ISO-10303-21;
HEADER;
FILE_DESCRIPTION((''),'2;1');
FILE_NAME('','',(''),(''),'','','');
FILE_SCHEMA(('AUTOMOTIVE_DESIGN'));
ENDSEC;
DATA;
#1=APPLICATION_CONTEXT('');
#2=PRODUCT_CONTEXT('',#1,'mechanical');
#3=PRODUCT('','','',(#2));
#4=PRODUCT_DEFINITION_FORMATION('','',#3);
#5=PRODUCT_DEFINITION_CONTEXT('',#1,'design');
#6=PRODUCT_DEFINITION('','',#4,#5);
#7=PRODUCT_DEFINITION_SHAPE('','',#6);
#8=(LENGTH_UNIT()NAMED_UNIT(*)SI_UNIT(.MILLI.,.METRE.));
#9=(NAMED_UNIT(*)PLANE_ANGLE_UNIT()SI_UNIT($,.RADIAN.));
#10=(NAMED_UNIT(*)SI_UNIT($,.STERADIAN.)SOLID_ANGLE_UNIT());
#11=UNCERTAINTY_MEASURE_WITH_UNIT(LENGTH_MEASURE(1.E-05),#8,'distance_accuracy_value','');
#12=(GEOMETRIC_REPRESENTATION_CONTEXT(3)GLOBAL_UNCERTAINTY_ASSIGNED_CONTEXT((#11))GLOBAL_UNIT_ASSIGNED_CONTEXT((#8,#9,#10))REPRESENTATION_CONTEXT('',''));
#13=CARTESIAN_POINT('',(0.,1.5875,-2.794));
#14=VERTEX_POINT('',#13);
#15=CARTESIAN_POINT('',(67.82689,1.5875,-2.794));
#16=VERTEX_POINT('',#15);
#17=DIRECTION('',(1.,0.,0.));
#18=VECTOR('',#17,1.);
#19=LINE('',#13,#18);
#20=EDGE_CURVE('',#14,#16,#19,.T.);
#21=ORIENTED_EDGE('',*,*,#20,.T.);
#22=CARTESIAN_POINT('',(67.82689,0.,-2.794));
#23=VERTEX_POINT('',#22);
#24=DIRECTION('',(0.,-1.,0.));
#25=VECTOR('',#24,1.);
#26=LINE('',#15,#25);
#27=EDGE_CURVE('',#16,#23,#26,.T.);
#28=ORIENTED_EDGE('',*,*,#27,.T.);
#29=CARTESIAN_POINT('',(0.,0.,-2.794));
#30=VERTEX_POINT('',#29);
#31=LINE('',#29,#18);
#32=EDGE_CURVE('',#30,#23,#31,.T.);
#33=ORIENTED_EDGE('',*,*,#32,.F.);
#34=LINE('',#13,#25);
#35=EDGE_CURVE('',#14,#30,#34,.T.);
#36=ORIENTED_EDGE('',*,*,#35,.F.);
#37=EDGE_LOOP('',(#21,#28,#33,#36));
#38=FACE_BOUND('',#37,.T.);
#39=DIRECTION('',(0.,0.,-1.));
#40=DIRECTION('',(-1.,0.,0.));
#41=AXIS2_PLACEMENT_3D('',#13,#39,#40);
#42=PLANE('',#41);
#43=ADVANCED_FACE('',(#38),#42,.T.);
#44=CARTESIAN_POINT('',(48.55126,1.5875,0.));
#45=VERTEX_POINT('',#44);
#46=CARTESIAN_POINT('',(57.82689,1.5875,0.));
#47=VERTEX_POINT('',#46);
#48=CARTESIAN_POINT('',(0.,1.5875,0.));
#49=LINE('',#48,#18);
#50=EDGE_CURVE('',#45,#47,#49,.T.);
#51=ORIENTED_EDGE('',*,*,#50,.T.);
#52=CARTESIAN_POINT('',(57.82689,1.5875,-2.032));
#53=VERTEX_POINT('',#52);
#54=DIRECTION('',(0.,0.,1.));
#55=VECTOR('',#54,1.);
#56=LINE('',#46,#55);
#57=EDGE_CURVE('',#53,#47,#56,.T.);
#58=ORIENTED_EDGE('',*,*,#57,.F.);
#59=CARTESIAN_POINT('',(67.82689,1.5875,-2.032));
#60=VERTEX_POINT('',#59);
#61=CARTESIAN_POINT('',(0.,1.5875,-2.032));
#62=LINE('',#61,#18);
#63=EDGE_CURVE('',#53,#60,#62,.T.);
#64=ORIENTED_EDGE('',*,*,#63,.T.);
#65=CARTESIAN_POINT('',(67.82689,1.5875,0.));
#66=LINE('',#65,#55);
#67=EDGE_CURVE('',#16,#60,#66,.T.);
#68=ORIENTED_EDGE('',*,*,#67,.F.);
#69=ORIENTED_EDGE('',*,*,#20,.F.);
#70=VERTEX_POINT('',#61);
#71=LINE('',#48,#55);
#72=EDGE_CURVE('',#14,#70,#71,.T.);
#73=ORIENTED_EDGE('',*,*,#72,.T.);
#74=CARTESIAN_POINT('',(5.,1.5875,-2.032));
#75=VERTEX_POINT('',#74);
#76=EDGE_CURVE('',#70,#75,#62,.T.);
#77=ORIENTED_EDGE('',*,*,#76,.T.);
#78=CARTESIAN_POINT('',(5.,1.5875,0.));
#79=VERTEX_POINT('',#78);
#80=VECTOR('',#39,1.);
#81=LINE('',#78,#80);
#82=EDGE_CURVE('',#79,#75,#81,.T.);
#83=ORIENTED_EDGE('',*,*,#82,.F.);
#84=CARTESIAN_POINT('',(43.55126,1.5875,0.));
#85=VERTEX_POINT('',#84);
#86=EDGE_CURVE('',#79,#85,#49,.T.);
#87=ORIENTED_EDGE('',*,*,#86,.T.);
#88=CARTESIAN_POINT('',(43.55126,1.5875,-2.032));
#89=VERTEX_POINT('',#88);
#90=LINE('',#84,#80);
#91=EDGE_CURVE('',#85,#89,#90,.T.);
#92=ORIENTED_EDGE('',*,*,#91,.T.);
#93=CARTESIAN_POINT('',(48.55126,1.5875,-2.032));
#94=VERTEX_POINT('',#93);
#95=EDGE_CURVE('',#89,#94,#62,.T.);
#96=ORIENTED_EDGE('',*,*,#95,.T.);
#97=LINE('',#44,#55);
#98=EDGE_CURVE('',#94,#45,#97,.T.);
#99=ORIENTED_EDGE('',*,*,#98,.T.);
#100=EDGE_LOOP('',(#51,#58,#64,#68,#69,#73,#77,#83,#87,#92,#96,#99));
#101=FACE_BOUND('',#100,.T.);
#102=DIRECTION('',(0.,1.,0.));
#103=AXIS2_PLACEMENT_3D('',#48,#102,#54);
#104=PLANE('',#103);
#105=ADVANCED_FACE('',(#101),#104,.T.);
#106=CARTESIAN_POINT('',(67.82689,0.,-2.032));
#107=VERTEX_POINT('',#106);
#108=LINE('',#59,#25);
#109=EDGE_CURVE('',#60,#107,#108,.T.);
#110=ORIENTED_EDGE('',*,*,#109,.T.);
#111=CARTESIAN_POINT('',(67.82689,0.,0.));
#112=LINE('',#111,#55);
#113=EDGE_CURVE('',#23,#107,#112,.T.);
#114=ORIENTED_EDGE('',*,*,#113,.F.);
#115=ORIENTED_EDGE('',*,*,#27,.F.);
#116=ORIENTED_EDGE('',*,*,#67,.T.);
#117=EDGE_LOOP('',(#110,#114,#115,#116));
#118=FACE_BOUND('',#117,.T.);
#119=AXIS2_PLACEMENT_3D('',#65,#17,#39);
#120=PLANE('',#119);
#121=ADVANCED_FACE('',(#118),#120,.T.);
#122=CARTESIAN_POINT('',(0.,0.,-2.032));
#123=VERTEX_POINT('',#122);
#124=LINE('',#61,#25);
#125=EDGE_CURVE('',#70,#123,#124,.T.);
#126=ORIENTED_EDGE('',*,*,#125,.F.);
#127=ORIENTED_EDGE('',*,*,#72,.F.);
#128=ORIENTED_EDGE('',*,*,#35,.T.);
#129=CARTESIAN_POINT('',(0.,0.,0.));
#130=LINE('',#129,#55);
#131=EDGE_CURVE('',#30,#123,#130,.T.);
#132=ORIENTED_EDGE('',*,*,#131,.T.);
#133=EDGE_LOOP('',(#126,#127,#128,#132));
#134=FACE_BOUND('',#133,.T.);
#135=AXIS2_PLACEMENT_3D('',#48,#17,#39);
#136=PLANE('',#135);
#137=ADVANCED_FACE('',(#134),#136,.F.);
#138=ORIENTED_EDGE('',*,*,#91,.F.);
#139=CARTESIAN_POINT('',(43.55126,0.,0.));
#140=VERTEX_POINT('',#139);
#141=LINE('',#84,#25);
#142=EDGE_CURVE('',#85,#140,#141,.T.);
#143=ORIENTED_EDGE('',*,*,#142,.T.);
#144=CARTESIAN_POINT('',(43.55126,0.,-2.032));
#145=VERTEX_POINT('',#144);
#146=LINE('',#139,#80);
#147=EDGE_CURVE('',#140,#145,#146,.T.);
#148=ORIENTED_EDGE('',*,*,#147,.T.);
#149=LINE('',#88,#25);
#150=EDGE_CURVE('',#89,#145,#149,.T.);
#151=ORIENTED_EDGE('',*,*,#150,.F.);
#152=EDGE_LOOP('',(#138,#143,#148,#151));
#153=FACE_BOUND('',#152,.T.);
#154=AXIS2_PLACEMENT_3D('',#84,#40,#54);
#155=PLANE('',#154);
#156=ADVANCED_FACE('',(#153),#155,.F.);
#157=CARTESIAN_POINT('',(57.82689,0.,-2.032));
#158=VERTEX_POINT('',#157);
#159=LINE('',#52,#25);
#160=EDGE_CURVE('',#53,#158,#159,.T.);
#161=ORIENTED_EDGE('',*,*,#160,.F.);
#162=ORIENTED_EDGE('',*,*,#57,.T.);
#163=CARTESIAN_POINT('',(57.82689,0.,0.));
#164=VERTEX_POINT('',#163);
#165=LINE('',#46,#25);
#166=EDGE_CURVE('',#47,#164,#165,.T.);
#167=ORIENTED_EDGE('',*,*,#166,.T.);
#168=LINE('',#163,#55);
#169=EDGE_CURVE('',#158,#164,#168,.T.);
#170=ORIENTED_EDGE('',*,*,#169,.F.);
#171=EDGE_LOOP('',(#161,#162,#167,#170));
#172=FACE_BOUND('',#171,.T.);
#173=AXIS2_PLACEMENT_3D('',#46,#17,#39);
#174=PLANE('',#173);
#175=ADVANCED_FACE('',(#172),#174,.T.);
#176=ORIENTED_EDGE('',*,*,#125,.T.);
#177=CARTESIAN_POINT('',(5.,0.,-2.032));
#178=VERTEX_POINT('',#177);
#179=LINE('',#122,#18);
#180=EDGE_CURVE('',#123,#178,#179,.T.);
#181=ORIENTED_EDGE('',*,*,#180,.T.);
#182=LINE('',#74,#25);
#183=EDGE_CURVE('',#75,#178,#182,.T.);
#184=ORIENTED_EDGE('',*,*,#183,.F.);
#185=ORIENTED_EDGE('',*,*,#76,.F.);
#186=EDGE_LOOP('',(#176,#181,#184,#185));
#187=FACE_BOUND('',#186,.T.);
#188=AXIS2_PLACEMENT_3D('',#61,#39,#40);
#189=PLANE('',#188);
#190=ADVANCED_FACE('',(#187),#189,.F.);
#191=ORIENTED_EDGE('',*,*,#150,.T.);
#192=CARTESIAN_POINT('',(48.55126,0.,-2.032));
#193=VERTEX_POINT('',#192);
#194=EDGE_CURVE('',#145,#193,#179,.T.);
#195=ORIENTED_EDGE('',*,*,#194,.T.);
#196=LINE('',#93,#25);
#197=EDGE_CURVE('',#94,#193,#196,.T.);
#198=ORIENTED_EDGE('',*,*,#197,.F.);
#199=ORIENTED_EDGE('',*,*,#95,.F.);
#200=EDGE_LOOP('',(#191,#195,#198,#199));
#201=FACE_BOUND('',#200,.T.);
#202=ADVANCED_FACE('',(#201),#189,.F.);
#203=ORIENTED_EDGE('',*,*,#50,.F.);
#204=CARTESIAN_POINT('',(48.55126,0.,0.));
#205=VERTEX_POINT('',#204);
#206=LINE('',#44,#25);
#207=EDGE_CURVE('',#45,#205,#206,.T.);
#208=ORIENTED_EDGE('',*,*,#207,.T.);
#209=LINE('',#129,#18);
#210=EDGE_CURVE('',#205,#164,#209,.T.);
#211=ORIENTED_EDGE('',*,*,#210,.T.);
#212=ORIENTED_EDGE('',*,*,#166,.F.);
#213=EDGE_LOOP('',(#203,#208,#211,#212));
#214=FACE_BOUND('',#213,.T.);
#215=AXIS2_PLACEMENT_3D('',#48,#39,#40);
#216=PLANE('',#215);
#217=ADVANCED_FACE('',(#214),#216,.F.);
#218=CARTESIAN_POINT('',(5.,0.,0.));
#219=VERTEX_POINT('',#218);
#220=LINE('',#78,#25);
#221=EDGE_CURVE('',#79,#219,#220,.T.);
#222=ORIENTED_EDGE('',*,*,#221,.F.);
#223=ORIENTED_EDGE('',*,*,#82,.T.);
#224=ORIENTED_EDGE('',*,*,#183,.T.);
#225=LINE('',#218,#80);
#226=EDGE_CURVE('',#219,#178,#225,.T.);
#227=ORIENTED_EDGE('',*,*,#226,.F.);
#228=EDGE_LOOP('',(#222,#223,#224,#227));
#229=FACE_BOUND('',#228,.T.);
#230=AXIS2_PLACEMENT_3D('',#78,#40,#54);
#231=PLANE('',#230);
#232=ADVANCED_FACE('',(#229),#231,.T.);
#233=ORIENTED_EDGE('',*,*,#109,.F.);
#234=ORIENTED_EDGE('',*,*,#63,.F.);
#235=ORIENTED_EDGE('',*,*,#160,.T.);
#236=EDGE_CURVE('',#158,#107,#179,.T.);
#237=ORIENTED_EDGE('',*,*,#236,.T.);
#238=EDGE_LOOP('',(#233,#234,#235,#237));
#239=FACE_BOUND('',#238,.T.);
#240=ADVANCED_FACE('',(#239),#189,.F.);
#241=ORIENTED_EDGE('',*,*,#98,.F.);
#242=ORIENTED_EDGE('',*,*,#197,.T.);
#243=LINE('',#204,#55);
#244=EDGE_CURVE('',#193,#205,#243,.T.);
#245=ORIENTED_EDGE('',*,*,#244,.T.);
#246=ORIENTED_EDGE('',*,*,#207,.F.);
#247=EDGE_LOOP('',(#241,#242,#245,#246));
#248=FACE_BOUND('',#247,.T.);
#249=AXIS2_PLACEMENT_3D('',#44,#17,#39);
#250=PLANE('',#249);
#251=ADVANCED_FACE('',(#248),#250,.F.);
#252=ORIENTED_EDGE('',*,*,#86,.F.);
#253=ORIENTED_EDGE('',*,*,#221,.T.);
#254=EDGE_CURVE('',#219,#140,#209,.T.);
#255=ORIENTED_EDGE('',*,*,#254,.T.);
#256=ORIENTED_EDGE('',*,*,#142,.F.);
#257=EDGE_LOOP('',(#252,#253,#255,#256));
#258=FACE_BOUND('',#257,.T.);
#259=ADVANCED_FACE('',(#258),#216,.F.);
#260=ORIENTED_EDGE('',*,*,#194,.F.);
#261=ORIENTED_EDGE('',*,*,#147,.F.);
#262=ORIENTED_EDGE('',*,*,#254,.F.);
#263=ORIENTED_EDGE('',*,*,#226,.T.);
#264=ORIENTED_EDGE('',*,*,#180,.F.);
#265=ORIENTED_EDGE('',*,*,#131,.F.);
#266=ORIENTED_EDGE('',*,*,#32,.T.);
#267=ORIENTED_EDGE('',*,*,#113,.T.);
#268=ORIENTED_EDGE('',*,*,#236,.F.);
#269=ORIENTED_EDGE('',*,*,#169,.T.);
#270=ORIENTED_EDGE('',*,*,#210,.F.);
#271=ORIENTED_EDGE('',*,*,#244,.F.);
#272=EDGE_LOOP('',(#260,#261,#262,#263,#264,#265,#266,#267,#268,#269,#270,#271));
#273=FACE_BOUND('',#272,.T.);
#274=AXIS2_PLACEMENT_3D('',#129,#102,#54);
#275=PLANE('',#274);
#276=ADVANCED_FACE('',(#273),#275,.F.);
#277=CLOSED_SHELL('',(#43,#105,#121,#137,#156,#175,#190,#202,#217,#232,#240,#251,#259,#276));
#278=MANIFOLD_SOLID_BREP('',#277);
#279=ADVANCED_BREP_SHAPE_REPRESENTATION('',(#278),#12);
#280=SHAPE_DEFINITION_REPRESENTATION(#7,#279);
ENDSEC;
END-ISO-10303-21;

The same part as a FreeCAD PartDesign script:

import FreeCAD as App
import Part
import Sketcher
from FreeCAD import Vector
Q = App.Units.Quantity

doc = App.newDocument("Part")
params = doc.addObject("Spreadsheet::Sheet", "Params")
for row, (alias, value) in enumerate([
    ("sketch1_height", "0.08 in"),
    ("sketch1_height2", "0.03 in"),
    ("pad1_length", "0.0625 in"),
], start=1):
    params.set(f"A{row}", alias)
    params.set(f"B{row}", "=" + value)
    params.setAlias(f"B{row}", alias)

body = doc.addObject("PartDesign::Body", "Body")

# Sketch on XZ plane
sketch1 = body.newObject("Sketcher::SketchObject", "Sketch")
sketch1.AttachmentSupport = (doc.getObject("XZ_Plane"), [""])
sketch1.MapMode = "FlatFace"
sketch1.addGeometry([
    Part.LineSegment(Vector(5, 0, 0), Vector(43.55126, 0, 0)),  # 0
    Part.LineSegment(Vector(43.55126, 0, 0), Vector(43.55126, -2.032, 0)),  # 1
    Part.LineSegment(Vector(43.55126, -2.032, 0), Vector(48.55126, -2.032, 0)),  # 2
    Part.LineSegment(Vector(48.55126, -2.032, 0), Vector(48.55126, 0, 0)),  # 3
    Part.LineSegment(Vector(48.55126, 0, 0), Vector(57.82689, 0, 0)),  # 4
    Part.LineSegment(Vector(57.82689, 0, 0), Vector(57.82689, -2.032, 0)),  # 5
    Part.LineSegment(Vector(57.82689, -2.032, 0), Vector(67.82689, -2.032, 0)),  # 6
    Part.LineSegment(Vector(67.82689, -2.032, 0), Vector(67.82689, -2.794, 0)),  # 7
    Part.LineSegment(Vector(67.82689, -2.794, 0), Vector(0, -2.794, 0)),  # 8
    Part.LineSegment(Vector(0, -2.794, 0), Vector(0, -2.032, 0)),  # 9
    Part.LineSegment(Vector(0, -2.032, 0), Vector(5, -2.032, 0)),  # 10
    Part.LineSegment(Vector(5, -2.032, 0), Vector(5, 0, 0)),  # 11
], False)
sketch1.addConstraint([
    Sketcher.Constraint("Coincident", 0, 2, 1, 1),
    Sketcher.Constraint("Coincident", 1, 2, 2, 1),
    Sketcher.Constraint("Coincident", 2, 2, 3, 1),
    Sketcher.Constraint("Coincident", 3, 2, 4, 1),
    Sketcher.Constraint("Coincident", 4, 2, 5, 1),
    Sketcher.Constraint("Coincident", 5, 2, 6, 1),
    Sketcher.Constraint("Coincident", 6, 2, 7, 1),
    Sketcher.Constraint("Coincident", 7, 2, 8, 1),
    Sketcher.Constraint("Coincident", 8, 2, 9, 1),
    Sketcher.Constraint("Coincident", 9, 2, 10, 1),
    Sketcher.Constraint("Coincident", 10, 2, 11, 1),
    Sketcher.Constraint("Coincident", 11, 2, 0, 1),
    Sketcher.Constraint("Horizontal", 0),
    Sketcher.Constraint("Vertical", 1),
    Sketcher.Constraint("Horizontal", 2),
    Sketcher.Constraint("Vertical", 3),
    Sketcher.Constraint("Horizontal", 4),
    Sketcher.Constraint("Vertical", 5),
    Sketcher.Constraint("Horizontal", 6),
    Sketcher.Constraint("Vertical", 7),
    Sketcher.Constraint("Horizontal", 8),
    Sketcher.Constraint("Vertical", 9),
    Sketcher.Constraint("Horizontal", 10),
    Sketcher.Constraint("Vertical", 11),
    Sketcher.Constraint("PointOnObject", 0, 2, -1),
    Sketcher.Constraint("PointOnObject", 3, 2, -1),
    Sketcher.Constraint("PointOnObject", 8, 2, -2),
    Sketcher.Constraint("Horizontal", 2, 2, 5, 2),
    Sketcher.Constraint("Horizontal", 6, 2, 9, 2),
    Sketcher.Constraint("Equal", 2, 10),
    Sketcher.Constraint("DistanceY", 1, 2, 1, 1, Q("0.08 in")),
    Sketcher.Constraint("DistanceY", 7, 2, 7, 1, Q("0.03 in")),
    Sketcher.Constraint("DistanceX", 2, 1, 2, 2, Q("5 mm")),
    Sketcher.Constraint("DistanceX", 6, 1, 6, 2, Q("10 mm")),
    Sketcher.Constraint("DistanceX", 0, 1, 0, 2, Q("38.55126 mm")),
    Sketcher.Constraint("DistanceX", 4, 1, 4, 2, Q("9.27563 mm")),
])
sketch1.setExpression("Constraints[30]", "Params.sketch1_height")
sketch1.setExpression("Constraints[31]", "Params.sketch1_height2")
pad1 = body.newObject("PartDesign::Pad", "Pad")
pad1.Profile = sketch1
pad1.setExpression("Length", "Params.pad1_length")
pad1.Reversed = True

doc.recompute()
